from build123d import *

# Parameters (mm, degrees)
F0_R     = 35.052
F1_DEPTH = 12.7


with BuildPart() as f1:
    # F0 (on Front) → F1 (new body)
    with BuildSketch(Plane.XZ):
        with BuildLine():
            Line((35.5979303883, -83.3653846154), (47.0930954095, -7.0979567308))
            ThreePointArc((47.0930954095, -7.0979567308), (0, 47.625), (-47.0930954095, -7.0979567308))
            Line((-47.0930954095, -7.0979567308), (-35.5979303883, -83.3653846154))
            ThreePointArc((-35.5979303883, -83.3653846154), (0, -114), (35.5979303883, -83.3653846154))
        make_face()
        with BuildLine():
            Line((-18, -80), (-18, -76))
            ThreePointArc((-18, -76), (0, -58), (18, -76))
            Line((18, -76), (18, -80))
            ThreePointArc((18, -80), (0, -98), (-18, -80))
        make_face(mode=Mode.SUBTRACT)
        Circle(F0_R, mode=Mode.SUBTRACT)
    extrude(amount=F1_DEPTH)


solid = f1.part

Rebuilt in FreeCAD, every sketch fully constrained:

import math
import FreeCAD as App
import Part
import Sketcher
from FreeCAD import Vector
Q = App.Units.Quantity

doc = App.newDocument("Part")
body = doc.addObject("PartDesign::Body", "Body")

sketch1 = body.newObject("Sketcher::SketchObject", "Sketch")
sketch1.AttachmentSupport = (doc.getObject("XZ_Plane"), [""])
sketch1.MapMode = "FlatFace"
sketch1.addGeometry([
    Part.LineSegment(Vector(35.6, -83.4, 0), Vector(47.1, -7.1, 0)),
    Part.ArcOfCircle(Part.Circle(Vector(0, 0, 0), Vector(0, 0, 1), 47.6), math.radians(-9), math.radians(189)),
    Part.LineSegment(Vector(-47.1, -7.1, 0), Vector(-35.6, -83.4, 0)),
    Part.ArcOfCircle(Part.Circle(Vector(0, -78, 0), Vector(0, 0, 1), 36), math.radians(-171), math.radians(-9)),
    Part.ArcOfCircle(Part.Circle(Vector(0, -80, 0), Vector(0, 0, 1), 18), math.radians(180), math.radians(360)),
    Part.LineSegment(Vector(-18, -80, 0), Vector(-18, -76, 0)),
    Part.ArcOfCircle(Part.Circle(Vector(0, -76, 0), Vector(0, 0, 1), 18), math.radians(0), math.radians(180)),
    Part.LineSegment(Vector(18, -76, 0), Vector(18, -80, 0)),
    Part.Circle(Vector(0, 0, 0), Vector(0, 0, 1), 35.1),
], False)
sketch1.addConstraint([
    Sketcher.Constraint("Tangent", 0, 2, 1, 1),
    Sketcher.Constraint("Tangent", 1, 2, 2, 1),
    Sketcher.Constraint("Tangent", 2, 2, 3, 1),
    Sketcher.Constraint("Tangent", 3, 2, 0, 1),
    Sketcher.Constraint("Tangent", 4, 1, 5, 1),
    Sketcher.Constraint("Tangent", 5, 2, 6, 2),
    Sketcher.Constraint("Tangent", 6, 1, 7, 1),
    Sketcher.Constraint("Tangent", 7, 2, 4, 2),
    Sketcher.Constraint("Vertical", 5),
    Sketcher.Constraint("Vertical", 7),
    Sketcher.Constraint("Coincident", 1, 3, -1, 1),
    Sketcher.Constraint("Coincident", 8, 3, -1, 1),
    Sketcher.Constraint("PointOnObject", 3, 3, -2),
    Sketcher.Constraint("PointOnObject", 4, 3, -2),
    Sketcher.Constraint("Radius", 3, Q("36 mm")),
    Sketcher.Constraint("Radius", 4, Q("18 mm")),
    Sketcher.Constraint("DistanceY", 5, 1, 5, 2, Q("4 mm")),
    Sketcher.Constraint("Diameter", 8, Q("70.104 mm")),
    Sketcher.Constraint("DistanceY", 3, 3, -1, 1, Q("78 mm")),
    Sketcher.Constraint("DistanceY", 4, 3, -1, 1, Q("80 mm")),
    Sketcher.Constraint("Radius", 1, Q("47.625 mm")),
])
pad1 = body.newObject("PartDesign::Pad", "Pad")
pad1.Profile = sketch1
pad1.Length = 12.7

doc.recompute()
